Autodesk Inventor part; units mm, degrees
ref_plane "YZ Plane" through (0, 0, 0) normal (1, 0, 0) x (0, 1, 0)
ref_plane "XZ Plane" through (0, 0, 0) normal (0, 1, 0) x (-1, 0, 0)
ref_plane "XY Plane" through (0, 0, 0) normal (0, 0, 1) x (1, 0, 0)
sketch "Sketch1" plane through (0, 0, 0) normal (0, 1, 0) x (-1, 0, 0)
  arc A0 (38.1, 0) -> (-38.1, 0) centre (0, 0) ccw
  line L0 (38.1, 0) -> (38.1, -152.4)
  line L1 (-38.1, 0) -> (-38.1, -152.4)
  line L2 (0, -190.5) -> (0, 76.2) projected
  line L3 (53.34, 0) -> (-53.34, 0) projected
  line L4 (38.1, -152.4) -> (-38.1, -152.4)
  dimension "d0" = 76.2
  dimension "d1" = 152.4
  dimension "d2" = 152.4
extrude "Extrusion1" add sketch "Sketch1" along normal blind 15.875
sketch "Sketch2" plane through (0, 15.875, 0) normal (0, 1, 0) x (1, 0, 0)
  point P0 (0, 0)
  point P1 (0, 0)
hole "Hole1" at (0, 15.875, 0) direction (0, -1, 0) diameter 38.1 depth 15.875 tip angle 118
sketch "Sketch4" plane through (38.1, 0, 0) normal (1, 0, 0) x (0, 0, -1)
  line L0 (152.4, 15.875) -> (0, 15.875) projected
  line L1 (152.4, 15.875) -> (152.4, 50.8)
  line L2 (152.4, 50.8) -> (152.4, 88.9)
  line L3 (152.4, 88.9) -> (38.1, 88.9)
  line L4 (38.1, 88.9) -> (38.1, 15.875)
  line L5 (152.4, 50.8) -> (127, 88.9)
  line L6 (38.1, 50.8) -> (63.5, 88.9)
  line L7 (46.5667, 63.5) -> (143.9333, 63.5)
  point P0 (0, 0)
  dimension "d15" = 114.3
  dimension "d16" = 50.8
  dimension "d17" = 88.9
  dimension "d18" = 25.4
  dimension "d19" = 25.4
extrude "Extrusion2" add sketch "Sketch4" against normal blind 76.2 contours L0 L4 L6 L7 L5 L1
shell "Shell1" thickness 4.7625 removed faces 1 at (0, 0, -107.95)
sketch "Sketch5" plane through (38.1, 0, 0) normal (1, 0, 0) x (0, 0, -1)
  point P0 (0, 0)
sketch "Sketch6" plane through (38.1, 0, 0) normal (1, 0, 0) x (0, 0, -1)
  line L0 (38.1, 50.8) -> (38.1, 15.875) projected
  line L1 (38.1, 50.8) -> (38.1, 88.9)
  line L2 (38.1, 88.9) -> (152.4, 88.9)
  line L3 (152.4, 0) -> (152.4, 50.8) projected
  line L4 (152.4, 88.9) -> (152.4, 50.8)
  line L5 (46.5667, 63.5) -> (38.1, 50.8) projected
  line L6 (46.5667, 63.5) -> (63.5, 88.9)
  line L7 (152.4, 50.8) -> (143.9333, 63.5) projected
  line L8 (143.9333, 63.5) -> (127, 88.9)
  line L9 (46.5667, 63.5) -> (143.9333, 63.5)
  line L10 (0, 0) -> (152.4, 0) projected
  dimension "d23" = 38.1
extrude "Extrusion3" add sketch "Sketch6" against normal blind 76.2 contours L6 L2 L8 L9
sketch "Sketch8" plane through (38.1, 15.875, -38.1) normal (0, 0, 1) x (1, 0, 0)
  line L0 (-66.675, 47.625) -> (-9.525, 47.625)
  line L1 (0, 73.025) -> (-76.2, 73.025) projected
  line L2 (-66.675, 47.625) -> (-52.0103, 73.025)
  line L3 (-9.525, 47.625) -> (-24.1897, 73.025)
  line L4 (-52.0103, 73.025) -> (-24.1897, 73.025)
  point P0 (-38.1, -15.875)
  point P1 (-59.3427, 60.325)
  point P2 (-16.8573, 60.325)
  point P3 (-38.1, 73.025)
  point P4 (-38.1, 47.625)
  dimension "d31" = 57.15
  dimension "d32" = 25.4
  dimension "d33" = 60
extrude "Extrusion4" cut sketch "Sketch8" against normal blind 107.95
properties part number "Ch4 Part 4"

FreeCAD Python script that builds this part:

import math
import FreeCAD as App
import Part
import Sketcher
Q = App.Units.Quantity


def faces_at(feature, points):
    """Names of the faces that lie closest to the given points."""
    faces = feature.Shape.Faces
    near = lambda p: min(range(len(faces)), key=lambda i: faces[i].distToShape(Part.Vertex(*p))[0])
    return sorted({f"Face{near(p) + 1}" for p in points})

doc = App.newDocument("Part")
body = doc.addObject("PartDesign::Body", "Body")

sketch1 = body.newObject("Sketcher::SketchObject", "Sketch")
sketch1.AttachmentSupport = (doc.getObject("XZ_Plane"), [""])
sketch1.MapMode = "FlatFace"
sketch1.addGeometry([
    Part.ArcOfCircle(Part.Circle(App.Vector(0, 0, 0), App.Vector(0, 0, 1), 38), math.radians(0), math.radians(180)),
    Part.LineSegment(App.Vector(38, 0, 0), App.Vector(38, -152, 0)),
    Part.LineSegment(App.Vector(38, -152, 0), App.Vector(-38, -152, 0)),
    Part.LineSegment(App.Vector(-38, -152, 0), App.Vector(-38, 0, 0)),
], False)
sketch1.addConstraint([
    Sketcher.Constraint("Tangent", 0, 1, 1, 1),
    Sketcher.Constraint("Coincident", 1, 2, 2, 1),
    Sketcher.Constraint("Coincident", 2, 2, 3, 1),
    Sketcher.Constraint("Tangent", 3, 2, 0, 2),
    Sketcher.Constraint("Vertical", 1),
    Sketcher.Constraint("Horizontal", 2),
    Sketcher.Constraint("Vertical", 3),
    Sketcher.Constraint("Coincident", 0, 3, -1, 1),
    Sketcher.Constraint("Radius", 0, Q("1.5 in")),
    Sketcher.Constraint("DistanceY", 1, 2, 1, 1, Q("6 in")),
])
pad1 = body.newObject("PartDesign::Pad", "Pad")
pad1.Profile = sketch1
pad1.Length = Q("0.625 in")
pad1.Reversed = True

sketch2 = body.newObject("Sketcher::SketchObject", "Sketch001")
sketch2.AttachmentSupport = (doc.getObject("XZ_Plane"), [""])
sketch2.MapMode = "FlatFace"
sketch2.AttachmentOffset = App.Placement(App.Vector(0, 0, -0.625 * 25.4), App.Rotation())
sketch2.addGeometry(Part.Circle(App.Vector(0, 0, 0), App.Vector(0, 0, 1), 19), False)
sketch2.addConstraint([
    Sketcher.Constraint("Coincident", 0, 3, -1, 1),
    Sketcher.Constraint("Diameter", 0, Q("1.5 in")),
])
doc.recompute()
hole = body.newObject("PartDesign::Hole", "Hole")
hole.Profile = sketch2
hole.ThreadType = "None"
hole.Diameter = Q("1.5 in")
hole.DepthType = "Dimension"
hole.Depth = Q("0.625 in")
hole.DrillPoint = "Angled"
hole.DrillPointAngle = 118
hole.Reversed = True

sketch3 = body.newObject("Sketcher::SketchObject", "Sketch002")
sketch3.AttachmentSupport = (doc.getObject("YZ_Plane"), [""])
sketch3.MapMode = "FlatFace"
sketch3.AttachmentOffset = App.Placement(App.Vector(0, 0, 1.5 * 25.4), App.Rotation())
sketch3.addGeometry([
    Part.LineSegment(App.Vector(16, -38, 0), App.Vector(16, -152, 0)),
    Part.LineSegment(App.Vector(16, -152, 0), App.Vector(51, -152, 0)),
    Part.LineSegment(App.Vector(51, -152, 0), App.Vector(64, -144, 0)),
    Part.LineSegment(App.Vector(64, -144, 0), App.Vector(64, -47, 0)),
    Part.LineSegment(App.Vector(64, -47, 0), App.Vector(51, -38, 0)),
    Part.LineSegment(App.Vector(51, -38, 0), App.Vector(16, -38, 0)),
], False)
sketch3.addConstraint([
    Sketcher.Constraint("Coincident", 0, 2, 1, 1),
    Sketcher.Constraint("Coincident", 1, 2, 2, 1),
    Sketcher.Constraint("Coincident", 2, 2, 3, 1),
    Sketcher.Constraint("Coincident", 3, 2, 4, 1),
    Sketcher.Constraint("Coincident", 4, 2, 5, 1),
    Sketcher.Constraint("Coincident", 5, 2, 0, 1),
    Sketcher.Constraint("Vertical", 0),
    Sketcher.Constraint("Horizontal", 1),
    Sketcher.Constraint("Vertical", 3),
    Sketcher.Constraint("Horizontal", 5),
    Sketcher.Constraint("Vertical", 1, 2, 4, 2),
    Sketcher.Constraint("Equal", 2, 4),
    Sketcher.Constraint("DistanceY", 0, 2, 0, 1, Q("4.5 in")),
    Sketcher.Constraint("DistanceX", -1, 1, 1, 2, Q("2 in")),
    Sketcher.Constraint("DistanceY", 0, 2, -1, 1, Q("6 in")),
    Sketcher.Constraint("DistanceX", -1, 1, 2, 2, Q("2.5 in")),
    Sketcher.Constraint("DistanceX", 1, 1, 1, 2, Q("1.375 in")),
    Sketcher.Constraint("Angle", 2, Q("33.69 deg")),
])
pad2 = body.newObject("PartDesign::Pad", "Pad001")
pad2.Profile = sketch3
pad2.Length = Q("3 in")
pad2.Reversed = True
doc.recompute()

thickness = body.newObject("PartDesign::Thickness", "Thickness")
thickness.Base = (pad2, faces_at(pad2, [(0, 0, -107.95)]))
thickness.Value = Q("0.1875 in")
thickness.Reversed = True
thickness.Join = "Intersection"

sketch4 = body.newObject("Sketcher::SketchObject", "Sketch003")
sketch4.AttachmentSupport = (doc.getObject("YZ_Plane"), [""])
sketch4.MapMode = "FlatFace"
sketch4.AttachmentOffset = App.Placement(App.Vector(0, 0, 1.5 * 25.4), App.Rotation())
sketch4.addGeometry([
    Part.LineSegment(App.Vector(89, -64, 0), App.Vector(64, -47, 0)),
    Part.LineSegment(App.Vector(64, -47, 0), App.Vector(64, -144, 0)),
    Part.LineSegment(App.Vector(64, -144, 0), App.Vector(89, -127, 0)),
    Part.LineSegment(App.Vector(89, -127, 0), App.Vector(89, -64, 0)),
], False)
sketch4.addConstraint([
    Sketcher.Constraint("Coincident", 0, 2, 1, 1),
    Sketcher.Constraint("Coincident", 1, 2, 2, 1),
    Sketcher.Constraint("Coincident", 2, 2, 3, 1),
    Sketcher.Constraint("Coincident", 3, 2, 0, 1),
    Sketcher.Constraint("Vertical", 1),
    Sketcher.Constraint("Vertical", 3),
    Sketcher.Constraint("Equal", 0, 2),
    Sketcher.Constraint("DistanceY", 3, 1, 3, 2, Q("2.5 in")),
    Sketcher.Constraint("DistanceY", 2, 2, -1, 1, Q("5 in")),
    Sketcher.Constraint("DistanceX", 1, 2, 2, 2, Q("1 in")),
    Sketcher.Constraint("DistanceX", -1, 1, 0, 2, Q("2.5 in")),
    Sketcher.Constraint("Angle", 0, Q("146.31 deg")),
])
pad3 = body.newObject("PartDesign::Pad", "Pad002")
pad3.Profile = sketch4
pad3.Length = Q("3 in")
pad3.Reversed = True

sketch5 = body.newObject("Sketcher::SketchObject", "Sketch004")
sketch5.AttachmentSupport = (doc.getObject("XY_Plane"), [""])
sketch5.MapMode = "FlatFace"
sketch5.AttachmentOffset = App.Placement(App.Vector(0, 0, -1.5 * 25.4), App.Rotation())
sketch5.addGeometry([
    Part.LineSegment(App.Vector(-14, 89, 0), App.Vector(-29, 64, 0)),
    Part.LineSegment(App.Vector(-29, 64, 0), App.Vector(29, 64, 0)),
    Part.LineSegment(App.Vector(29, 64, 0), App.Vector(14, 89, 0)),
    Part.LineSegment(App.Vector(14, 89, 0), App.Vector(-14, 89, 0)),
], False)
sketch5.addConstraint([
    Sketcher.Constraint("Coincident", 0, 2, 1, 1),
    Sketcher.Constraint("Coincident", 1, 2, 2, 1),
    Sketcher.Constraint("Coincident", 2, 2, 3, 1),
    Sketcher.Constraint("Coincident", 3, 2, 0, 1),
    Sketcher.Constraint("Horizontal", 1),
    Sketcher.Constraint("Horizontal", 3),
    Sketcher.Constraint("Equal", 0, 2),
    Sketcher.Constraint("DistanceY", 1, 2, 2, 2, Q("1 in")),
    Sketcher.Constraint("DistanceX", 1, 1, 1, 2, Q("2.25 in")),
    Sketcher.Constraint("Angle", 0, Q("-120 deg")),
    Sketcher.Constraint("DistanceY", -1, 1, 0, 2, Q("2.5 in")),
    Sketcher.Constraint("DistanceX", 0, 2, -1, 1, Q("1.125 in")),
])
pocket1 = body.newObject("PartDesign::Pocket", "Pocket")
pocket1.Profile = sketch5
pocket1.Length = Q("4.25 in")

doc.recompute()
